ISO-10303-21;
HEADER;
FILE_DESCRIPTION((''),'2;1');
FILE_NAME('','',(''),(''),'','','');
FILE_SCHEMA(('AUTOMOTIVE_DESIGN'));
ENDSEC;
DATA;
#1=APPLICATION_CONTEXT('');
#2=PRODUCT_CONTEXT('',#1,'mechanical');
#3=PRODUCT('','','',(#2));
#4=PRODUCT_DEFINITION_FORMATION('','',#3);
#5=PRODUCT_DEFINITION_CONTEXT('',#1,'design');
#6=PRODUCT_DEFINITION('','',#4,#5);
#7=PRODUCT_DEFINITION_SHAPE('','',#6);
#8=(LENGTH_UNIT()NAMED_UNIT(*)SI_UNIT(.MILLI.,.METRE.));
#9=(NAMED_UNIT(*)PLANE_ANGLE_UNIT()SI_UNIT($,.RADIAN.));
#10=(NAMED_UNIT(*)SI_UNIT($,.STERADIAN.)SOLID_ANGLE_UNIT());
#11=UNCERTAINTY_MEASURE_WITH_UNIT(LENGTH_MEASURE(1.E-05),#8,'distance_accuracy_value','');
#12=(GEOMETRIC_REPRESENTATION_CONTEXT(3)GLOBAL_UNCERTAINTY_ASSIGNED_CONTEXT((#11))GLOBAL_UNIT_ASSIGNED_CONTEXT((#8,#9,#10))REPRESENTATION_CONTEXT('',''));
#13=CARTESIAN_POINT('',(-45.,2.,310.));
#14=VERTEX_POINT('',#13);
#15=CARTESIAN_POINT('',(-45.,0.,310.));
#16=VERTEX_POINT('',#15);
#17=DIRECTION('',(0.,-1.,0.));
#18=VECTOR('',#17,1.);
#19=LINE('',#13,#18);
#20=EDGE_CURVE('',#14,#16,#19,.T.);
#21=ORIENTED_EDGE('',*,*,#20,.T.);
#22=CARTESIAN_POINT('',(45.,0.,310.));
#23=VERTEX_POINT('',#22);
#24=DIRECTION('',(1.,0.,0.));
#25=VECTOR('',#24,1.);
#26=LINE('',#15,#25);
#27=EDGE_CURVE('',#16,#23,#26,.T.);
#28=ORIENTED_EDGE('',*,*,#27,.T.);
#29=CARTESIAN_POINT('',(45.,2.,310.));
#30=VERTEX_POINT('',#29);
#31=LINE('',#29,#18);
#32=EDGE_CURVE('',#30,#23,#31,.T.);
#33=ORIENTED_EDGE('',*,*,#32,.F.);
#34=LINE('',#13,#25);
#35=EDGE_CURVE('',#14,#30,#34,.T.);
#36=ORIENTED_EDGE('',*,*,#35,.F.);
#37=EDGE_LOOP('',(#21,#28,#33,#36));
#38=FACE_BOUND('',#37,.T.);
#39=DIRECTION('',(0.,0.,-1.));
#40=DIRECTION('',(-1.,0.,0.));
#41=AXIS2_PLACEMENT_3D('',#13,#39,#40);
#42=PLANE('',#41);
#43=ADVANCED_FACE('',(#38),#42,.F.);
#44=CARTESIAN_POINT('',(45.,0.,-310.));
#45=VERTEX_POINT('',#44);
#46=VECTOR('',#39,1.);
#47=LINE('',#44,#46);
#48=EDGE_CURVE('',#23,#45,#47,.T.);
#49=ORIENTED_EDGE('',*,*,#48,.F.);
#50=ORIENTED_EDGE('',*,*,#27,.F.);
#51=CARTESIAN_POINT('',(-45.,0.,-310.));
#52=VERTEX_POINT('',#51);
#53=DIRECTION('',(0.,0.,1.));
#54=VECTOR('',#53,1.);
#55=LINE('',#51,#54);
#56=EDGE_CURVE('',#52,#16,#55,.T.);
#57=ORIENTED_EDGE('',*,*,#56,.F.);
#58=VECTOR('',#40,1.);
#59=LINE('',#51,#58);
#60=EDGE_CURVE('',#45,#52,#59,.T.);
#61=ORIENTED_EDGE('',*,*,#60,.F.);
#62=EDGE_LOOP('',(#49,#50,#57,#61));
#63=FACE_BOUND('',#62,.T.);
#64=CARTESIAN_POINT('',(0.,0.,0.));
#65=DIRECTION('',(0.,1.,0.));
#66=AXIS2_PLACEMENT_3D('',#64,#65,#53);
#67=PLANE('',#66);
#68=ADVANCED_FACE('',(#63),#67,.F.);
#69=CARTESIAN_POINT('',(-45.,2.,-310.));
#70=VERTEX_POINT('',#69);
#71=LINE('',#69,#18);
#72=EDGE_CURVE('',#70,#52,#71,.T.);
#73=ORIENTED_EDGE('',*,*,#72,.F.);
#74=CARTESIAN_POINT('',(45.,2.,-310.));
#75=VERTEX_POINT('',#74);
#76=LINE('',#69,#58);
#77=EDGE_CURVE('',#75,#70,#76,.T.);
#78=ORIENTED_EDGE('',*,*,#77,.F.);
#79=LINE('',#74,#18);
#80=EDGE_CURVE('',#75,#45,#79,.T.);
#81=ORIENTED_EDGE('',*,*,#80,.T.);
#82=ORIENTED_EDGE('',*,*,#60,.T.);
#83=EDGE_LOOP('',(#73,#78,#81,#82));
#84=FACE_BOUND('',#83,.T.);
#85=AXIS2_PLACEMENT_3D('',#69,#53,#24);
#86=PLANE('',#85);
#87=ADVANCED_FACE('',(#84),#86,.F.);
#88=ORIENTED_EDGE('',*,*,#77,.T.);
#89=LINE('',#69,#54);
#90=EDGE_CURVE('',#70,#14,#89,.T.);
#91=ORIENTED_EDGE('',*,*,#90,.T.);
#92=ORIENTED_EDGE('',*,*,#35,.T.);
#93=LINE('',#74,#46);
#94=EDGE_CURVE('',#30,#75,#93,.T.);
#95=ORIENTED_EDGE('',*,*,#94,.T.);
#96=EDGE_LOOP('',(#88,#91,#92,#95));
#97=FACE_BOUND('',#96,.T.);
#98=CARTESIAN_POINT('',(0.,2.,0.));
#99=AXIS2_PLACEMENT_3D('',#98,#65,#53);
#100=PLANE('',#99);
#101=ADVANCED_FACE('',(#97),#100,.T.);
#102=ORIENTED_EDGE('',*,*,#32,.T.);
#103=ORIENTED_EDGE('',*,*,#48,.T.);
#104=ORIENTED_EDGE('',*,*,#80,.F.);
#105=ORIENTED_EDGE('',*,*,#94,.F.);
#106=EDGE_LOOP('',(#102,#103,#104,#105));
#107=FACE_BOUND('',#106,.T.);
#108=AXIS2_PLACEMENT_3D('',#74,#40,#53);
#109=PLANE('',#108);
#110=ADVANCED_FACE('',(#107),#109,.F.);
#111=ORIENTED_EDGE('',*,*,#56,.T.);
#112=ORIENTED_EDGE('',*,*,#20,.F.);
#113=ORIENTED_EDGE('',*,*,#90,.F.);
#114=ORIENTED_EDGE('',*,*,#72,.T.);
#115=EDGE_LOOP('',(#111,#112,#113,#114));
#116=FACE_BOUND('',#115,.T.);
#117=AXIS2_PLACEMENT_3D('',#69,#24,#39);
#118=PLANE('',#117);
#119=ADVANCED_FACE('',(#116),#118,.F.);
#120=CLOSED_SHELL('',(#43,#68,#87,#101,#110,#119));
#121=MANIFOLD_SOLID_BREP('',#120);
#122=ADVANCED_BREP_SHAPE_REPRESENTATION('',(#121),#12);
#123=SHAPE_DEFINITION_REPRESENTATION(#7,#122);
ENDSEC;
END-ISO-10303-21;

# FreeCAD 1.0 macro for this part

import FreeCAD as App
import Part
import Sketcher

V = App.Vector
Q = App.Units.Quantity


def add_polygon(sketch, points):
    """Adds a closed chain of lines whose ends are joined by coincident constraints."""
    first, n = sketch.GeometryCount, len(points)
    for a, b in zip(points, points[1:] + points[:1]):
        sketch.addGeometry(Part.LineSegment(App.Vector(*a, 0), App.Vector(*b, 0)), False)
    for i in range(n):
        sketch.addConstraint(Sketcher.Constraint("Coincident", first + i, 2, first + (i + 1) % n, 1))

doc = App.newDocument("Part")
body = doc.addObject("PartDesign::Body", "Body")

# Sketch on XZ plane
sketch1 = body.newObject("Sketcher::SketchObject", "Sketch")
sketch1.AttachmentSupport = (doc.getObject("XZ_Plane"), [""])
sketch1.MapMode = "FlatFace"
add_polygon(sketch1, [(-45, -310), (-45, 310), (45, 310), (45, -310)])  # lines 0-3
sketch1.addConstraint(Sketcher.Constraint("Vertical", 0))
sketch1.addConstraint(Sketcher.Constraint("Horizontal", 1))
sketch1.addConstraint(Sketcher.Constraint("Vertical", 2))
sketch1.addConstraint(Sketcher.Constraint("Horizontal", 3))
sketch1.addConstraint(Sketcher.Constraint("Symmetric", 0, 2, 2, 2, -1, 1))
sketch1.addConstraint(Sketcher.Constraint("DistanceX", 1, 1, 1, 2, Q("90 mm")))
sketch1.addConstraint(Sketcher.Constraint("DistanceY", 0, 1, 0, 2, Q("620 mm")))
pad1 = body.newObject("PartDesign::Pad", "Pad")
pad1.Profile = sketch1
pad1.Length = 2
pad1.Reversed = True

doc.recompute()
